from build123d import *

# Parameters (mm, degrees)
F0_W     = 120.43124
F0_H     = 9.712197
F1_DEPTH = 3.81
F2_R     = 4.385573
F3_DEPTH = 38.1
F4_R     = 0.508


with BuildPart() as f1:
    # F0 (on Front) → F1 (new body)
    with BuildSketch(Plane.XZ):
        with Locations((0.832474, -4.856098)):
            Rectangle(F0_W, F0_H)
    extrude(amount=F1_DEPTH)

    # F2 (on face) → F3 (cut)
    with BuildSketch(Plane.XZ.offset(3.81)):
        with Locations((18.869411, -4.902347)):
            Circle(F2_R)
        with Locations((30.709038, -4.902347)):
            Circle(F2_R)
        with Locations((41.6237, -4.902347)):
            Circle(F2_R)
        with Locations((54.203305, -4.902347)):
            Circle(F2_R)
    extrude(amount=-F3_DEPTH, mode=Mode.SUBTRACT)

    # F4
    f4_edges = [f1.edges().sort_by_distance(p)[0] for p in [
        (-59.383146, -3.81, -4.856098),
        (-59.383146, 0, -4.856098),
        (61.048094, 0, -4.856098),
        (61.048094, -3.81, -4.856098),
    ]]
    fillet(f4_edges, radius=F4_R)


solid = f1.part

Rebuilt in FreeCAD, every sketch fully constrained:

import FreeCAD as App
import Part
import Sketcher
from FreeCAD import Vector
Q = App.Units.Quantity


def edges_at(feature, points):
    """Names of the edges that pass closest to the given points."""
    edges = feature.Shape.Edges
    near = lambda p: min(range(len(edges)), key=lambda i: edges[i].distToShape(Part.Vertex(*p))[0])
    return sorted({f"Edge{near(p) + 1}" for p in points})


def add_polygon(sketch, points):
    """Adds a closed chain of lines whose ends are joined by coincident constraints."""
    first, n = sketch.GeometryCount, len(points)
    for a, b in zip(points, points[1:] + points[:1]):
        sketch.addGeometry(Part.LineSegment(App.Vector(*a, 0), App.Vector(*b, 0)), False)
    for i in range(n):
        sketch.addConstraint(Sketcher.Constraint("Coincident", first + i, 2, first + (i + 1) % n, 1))

doc = App.newDocument("Part")
body = doc.addObject("PartDesign::Body", "Body")

# Sketch on XZ plane
sketch1 = body.newObject("Sketcher::SketchObject", "Sketch")
sketch1.AttachmentSupport = (doc.getObject("XZ_Plane"), [""])
sketch1.MapMode = "FlatFace"
add_polygon(sketch1, [(-59, 0), (-59, -10), (61, -10), (61, 0)])  # lines 0-3
sketch1.addConstraint(Sketcher.Constraint("Vertical", 0))
sketch1.addConstraint(Sketcher.Constraint("Horizontal", 1))
sketch1.addConstraint(Sketcher.Constraint("Vertical", 2))
sketch1.addConstraint(Sketcher.Constraint("Horizontal", 3))
sketch1.addConstraint(Sketcher.Constraint("PointOnObject", 2, 2, -1))
sketch1.addConstraint(Sketcher.Constraint("DistanceX", 1, 1, 1, 2, Q("120.43124 mm")))
sketch1.addConstraint(Sketcher.Constraint("DistanceY", 0, 2, 0, 1, Q("9.712197 mm")))
sketch1.addConstraint(Sketcher.Constraint("DistanceX", 0, 2, -1, 1, Q("59.383146 mm")))
pad1 = body.newObject("PartDesign::Pad", "Pad")
pad1.Profile = sketch1
pad1.Length = Q("0.15 in")

# Sketch on XZ plane
sketch2 = body.newObject("Sketcher::SketchObject", "Sketch001")
sketch2.AttachmentSupport = (doc.getObject("XZ_Plane"), [""])
sketch2.MapMode = "FlatFace"
sketch2.AttachmentOffset = App.Placement(Vector(0, 0, 0.15 * 25.4), App.Rotation())
sketch2.addGeometry(Part.Circle(Vector(18.9, -4.9, 0), Vector(0, 0, 1), 4.4), False)
sketch2.addGeometry(Part.Circle(Vector(30.7, -4.9, 0), Vector(0, 0, 1), 4.4), False)
sketch2.addGeometry(Part.Circle(Vector(41.6, -4.9, 0), Vector(0, 0, 1), 4.4), False)
sketch2.addGeometry(Part.Circle(Vector(54.2, -4.9, 0), Vector(0, 0, 1), 4.4), False)
sketch2.addConstraint(Sketcher.Constraint("Equal", 0, 1))
sketch2.addConstraint(Sketcher.Constraint("Equal", 1, 2))
sketch2.addConstraint(Sketcher.Constraint("Equal", 2, 3))
sketch2.addConstraint(Sketcher.Constraint("Horizontal", 0, 3, 1, 3))
sketch2.addConstraint(Sketcher.Constraint("Horizontal", 1, 3, 2, 3))
sketch2.addConstraint(Sketcher.Constraint("Horizontal", 2, 3, 3, 3))
sketch2.addConstraint(Sketcher.Constraint("Diameter", 0, Q("8.771146 mm")))
sketch2.addConstraint(Sketcher.Constraint("DistanceX", -1, 1, 2, 3, Q("41.6237 mm")))
sketch2.addConstraint(Sketcher.Constraint("DistanceX", -1, 1, 0, 3, Q("18.869411 mm")))
sketch2.addConstraint(Sketcher.Constraint("DistanceY", 0, 3, -1, 1, Q("4.902347 mm")))
sketch2.addConstraint(Sketcher.Constraint("DistanceX", -1, 1, 1, 3, Q("30.709038 mm")))
sketch2.addConstraint(Sketcher.Constraint("DistanceX", -1, 1, 3, 3, Q("54.203305 mm")))
pocket1 = body.newObject("PartDesign::Pocket", "Pocket")
pocket1.Profile = sketch2
pocket1.Length = Q("1.5 in")
doc.recompute()

fillet = body.newObject("PartDesign::Fillet", "Fillet")
fillet.Base = (pocket1, edges_at(pocket1, [
    (-59.383, -3.81, -4.856),
    (-59.383, 0, -4.856),
    (61.048, 0, -4.856),
    (61.048, -3.81, -4.856),
]))
fillet.Radius = Q("0.02 in")

doc.recompute()
